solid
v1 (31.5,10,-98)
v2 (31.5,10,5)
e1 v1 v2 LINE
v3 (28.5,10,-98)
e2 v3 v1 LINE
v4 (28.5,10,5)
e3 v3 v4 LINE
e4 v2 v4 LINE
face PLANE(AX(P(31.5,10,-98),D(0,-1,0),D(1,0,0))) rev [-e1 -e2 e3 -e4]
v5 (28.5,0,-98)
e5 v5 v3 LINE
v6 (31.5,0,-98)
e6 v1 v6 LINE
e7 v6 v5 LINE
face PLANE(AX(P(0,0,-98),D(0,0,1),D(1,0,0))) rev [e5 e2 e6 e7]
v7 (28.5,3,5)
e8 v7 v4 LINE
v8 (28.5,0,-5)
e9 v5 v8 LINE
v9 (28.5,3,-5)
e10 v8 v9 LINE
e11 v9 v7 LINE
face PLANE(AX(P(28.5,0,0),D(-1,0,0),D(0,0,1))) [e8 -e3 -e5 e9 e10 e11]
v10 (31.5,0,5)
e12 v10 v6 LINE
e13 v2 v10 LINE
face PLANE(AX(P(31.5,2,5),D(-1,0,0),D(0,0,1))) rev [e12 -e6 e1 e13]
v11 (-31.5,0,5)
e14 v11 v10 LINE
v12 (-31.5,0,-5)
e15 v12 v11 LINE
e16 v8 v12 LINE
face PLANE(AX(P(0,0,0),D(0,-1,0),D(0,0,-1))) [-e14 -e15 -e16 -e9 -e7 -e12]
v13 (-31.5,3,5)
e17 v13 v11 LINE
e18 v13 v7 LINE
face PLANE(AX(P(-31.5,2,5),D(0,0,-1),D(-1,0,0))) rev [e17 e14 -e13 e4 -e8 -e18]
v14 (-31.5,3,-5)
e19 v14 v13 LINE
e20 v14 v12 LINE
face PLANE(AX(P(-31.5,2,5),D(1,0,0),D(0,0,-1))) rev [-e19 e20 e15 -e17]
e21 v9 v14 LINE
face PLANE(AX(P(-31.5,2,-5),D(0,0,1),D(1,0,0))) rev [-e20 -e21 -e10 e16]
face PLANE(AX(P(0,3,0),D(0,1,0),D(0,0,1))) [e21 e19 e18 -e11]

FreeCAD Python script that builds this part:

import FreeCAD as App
import Part
import Sketcher
from FreeCAD import Vector
Q = App.Units.Quantity


def add_polygon(sketch, points):
    """Adds a closed chain of lines whose ends are joined by coincident constraints."""
    first, n = sketch.GeometryCount, len(points)
    for a, b in zip(points, points[1:] + points[:1]):
        sketch.addGeometry(Part.LineSegment(App.Vector(*a, 0), App.Vector(*b, 0)), False)
    for i in range(n):
        sketch.addConstraint(Sketcher.Constraint("Coincident", first + i, 2, first + (i + 1) % n, 1))

doc = App.newDocument("Part")
body = doc.addObject("PartDesign::Body", "Body")

# Sketch on XZ plane
sketch1 = body.newObject("Sketcher::SketchObject", "Sketch")
sketch1.AttachmentSupport = (doc.getObject("XZ_Plane"), [""])
sketch1.MapMode = "FlatFace"
add_polygon(sketch1, [(-32, -5), (-32, 5), (32, 5), (32, -5)])  # lines 0-3
sketch1.addConstraint([
    Sketcher.Constraint("Vertical", 0),
    Sketcher.Constraint("Horizontal", 1),
    Sketcher.Constraint("Vertical", 2),
    Sketcher.Constraint("Horizontal", 3),
    Sketcher.Constraint("Symmetric", 0, 2, 2, 2, -1, 1),
    Sketcher.Constraint("DistanceX", 1, 1, 1, 2, Q("63 mm")),
    Sketcher.Constraint("DistanceY", 0, 1, 0, 2, Q("10 mm")),
])
pad1 = body.newObject("PartDesign::Pad", "Pad")
pad1.Profile = sketch1
pad1.Length = 2
pad1.Reversed = True

# Sketch on XZ plane
sketch2 = body.newObject("Sketcher::SketchObject", "Sketch001")
sketch2.AttachmentSupport = (doc.getObject("XZ_Plane"), [""])
sketch2.MapMode = "FlatFace"
sketch2.AttachmentOffset = App.Placement(Vector(0, 0, -2), App.Rotation())
add_polygon(sketch2, [(29.5, -5), (29.5, 5), (31.5, 5), (31.5, -5)])  # lines 0-3
sketch2.addConstraint([
    Sketcher.Constraint("Vertical", 0),
    Sketcher.Constraint("Horizontal", 1),
    Sketcher.Constraint("Vertical", 2),
    Sketcher.Constraint("Horizontal", 3),
    Sketcher.Constraint("DistanceX", 1, 1, 1, 2, Q("2 mm")),
    Sketcher.Constraint("DistanceY", 0, 1, 0, 2, Q("10 mm")),
    Sketcher.Constraint("DistanceY", -1, 1, 0, 2, Q("5 mm")),
    Sketcher.Constraint("DistanceX", -1, 1, 0, 2, Q("29.5 mm")),
])
pad2 = body.newObject("PartDesign::Pad", "Pad001")
pad2.Profile = sketch2
pad2.Length = 93
pad2.Reversed = True

# Sketch on XZ plane
sketch3 = body.newObject("Sketcher::SketchObject", "Sketch002")
sketch3.AttachmentSupport = (doc.getObject("XZ_Plane"), [""])
sketch3.MapMode = "FlatFace"
sketch3.AttachmentOffset = App.Placement(Vector(0, 0, -2), App.Rotation())
add_polygon(sketch3, [(-32, -5), (-32, 5), (30, 5), (30, -5)])  # lines 0-3
sketch3.addConstraint([
    Sketcher.Constraint("Vertical", 0),
    Sketcher.Constraint("Horizontal", 1),
    Sketcher.Constraint("Vertical", 2),
    Sketcher.Constraint("Horizontal", 3),
    Sketcher.Constraint("DistanceX", 1, 1, 1, 2, Q("61 mm")),
    Sketcher.Constraint("DistanceY", 0, 1, 0, 2, Q("10 mm")),
    Sketcher.Constraint("DistanceY", -1, 1, 0, 2, Q("5 mm")),
    Sketcher.Constraint("DistanceX", 0, 2, -1, 1, Q("31.5 mm")),
])
pad3 = body.newObject("PartDesign::Pad", "Pad002")
pad3.Profile = sketch3
pad3.Length = 1
pad3.Reversed = True

# Sketch on YZ plane
sketch4 = body.newObject("Sketcher::SketchObject", "Sketch003")
sketch4.AttachmentSupport = (doc.getObject("YZ_Plane"), [""])
sketch4.MapMode = "FlatFace"
sketch4.AttachmentOffset = App.Placement(Vector(0, 0, 29.5), App.Rotation())
add_polygon(sketch4, [(95, -5), (3, -5), (3, 5), (95, 5)])  # lines 0-3
sketch4.addConstraint([
    Sketcher.Constraint("Horizontal", 0),
    Sketcher.Constraint("Vertical", 1),
    Sketcher.Constraint("Horizontal", 2),
    Sketcher.Constraint("Vertical", 3),
    Sketcher.Constraint("DistanceX", 0, 2, 0, 1, Q("92 mm")),
    Sketcher.Constraint("DistanceY", 1, 1, 1, 2, Q("10 mm")),
    Sketcher.Constraint("DistanceX", -1, 1, 0, 2, Q("3 mm")),
    Sketcher.Constraint("DistanceY", 0, 2, -1, 1, Q("5 mm")),
])
pad4 = body.newObject("PartDesign::Pad", "Pad003")
pad4.Profile = sketch4
pad4.Length = 1
pad4.Reversed = True

# Sketch on XY plane
sketch5 = body.newObject("Sketcher::SketchObject", "Sketch004")
sketch5.AttachmentSupport = (doc.getObject("XY_Plane"), [""])
sketch5.MapMode = "FlatFace"
sketch5.AttachmentOffset = App.Placement(Vector(0, 0, -5), App.Rotation())
add_polygon(sketch5, [(31.5, 10), (31.5, 0), (28.5, 0), (28.5, 10)])  # lines 0-3
sketch5.addConstraint([
    Sketcher.Constraint("Vertical", 0),
    Sketcher.Constraint("Horizontal", 1),
    Sketcher.Constraint("Vertical", 2),
    Sketcher.Constraint("Horizontal", 3),
    Sketcher.Constraint("PointOnObject", 0, 2, -1),
    Sketcher.Constraint("DistanceX", 1, 2, 1, 1, Q("3 mm")),
    Sketcher.Constraint("DistanceY", 0, 2, 0, 1, Q("10 mm")),
    Sketcher.Constraint("DistanceX", -1, 1, 0, 2, Q("31.5 mm")),
])
pad5 = body.newObject("PartDesign::Pad", "Pad004")
pad5.Profile = sketch5
pad5.Length = 93
pad5.Reversed = True

# Sketch on YZ plane
sketch6 = body.newObject("Sketcher::SketchObject", "Sketch005")
sketch6.AttachmentSupport = (doc.getObject("YZ_Plane"), [""])
sketch6.MapMode = "FlatFace"
sketch6.AttachmentOffset = App.Placement(Vector(0, 0, 28.5), App.Rotation())
add_polygon(sketch6, [(112, -5), (10, -5), (10, 22), (112, 22)])  # lines 0-3
sketch6.addConstraint([
    Sketcher.Constraint("Horizontal", 0),
    Sketcher.Constraint("Vertical", 1),
    Sketcher.Constraint("Horizontal", 2),
    Sketcher.Constraint("Vertical", 3),
    Sketcher.Constraint("DistanceX", -1, 1, 0, 2, Q("10 mm")),
    Sketcher.Constraint("DistanceY", 0, 2, -1, 1, Q("5 mm")),
    Sketcher.Constraint("DistanceX", 0, 2, 0, 1, Q("101.559657 mm")),
    Sketcher.Constraint("DistanceY", 1, 1, 1, 2, Q("26.594312 mm")),
])
pocket1 = body.newObject("PartDesign::Pocket", "Pocket")
pocket1.Profile = sketch6
pocket1.Length = 93
pocket1.Reversed = True

doc.recompute()
